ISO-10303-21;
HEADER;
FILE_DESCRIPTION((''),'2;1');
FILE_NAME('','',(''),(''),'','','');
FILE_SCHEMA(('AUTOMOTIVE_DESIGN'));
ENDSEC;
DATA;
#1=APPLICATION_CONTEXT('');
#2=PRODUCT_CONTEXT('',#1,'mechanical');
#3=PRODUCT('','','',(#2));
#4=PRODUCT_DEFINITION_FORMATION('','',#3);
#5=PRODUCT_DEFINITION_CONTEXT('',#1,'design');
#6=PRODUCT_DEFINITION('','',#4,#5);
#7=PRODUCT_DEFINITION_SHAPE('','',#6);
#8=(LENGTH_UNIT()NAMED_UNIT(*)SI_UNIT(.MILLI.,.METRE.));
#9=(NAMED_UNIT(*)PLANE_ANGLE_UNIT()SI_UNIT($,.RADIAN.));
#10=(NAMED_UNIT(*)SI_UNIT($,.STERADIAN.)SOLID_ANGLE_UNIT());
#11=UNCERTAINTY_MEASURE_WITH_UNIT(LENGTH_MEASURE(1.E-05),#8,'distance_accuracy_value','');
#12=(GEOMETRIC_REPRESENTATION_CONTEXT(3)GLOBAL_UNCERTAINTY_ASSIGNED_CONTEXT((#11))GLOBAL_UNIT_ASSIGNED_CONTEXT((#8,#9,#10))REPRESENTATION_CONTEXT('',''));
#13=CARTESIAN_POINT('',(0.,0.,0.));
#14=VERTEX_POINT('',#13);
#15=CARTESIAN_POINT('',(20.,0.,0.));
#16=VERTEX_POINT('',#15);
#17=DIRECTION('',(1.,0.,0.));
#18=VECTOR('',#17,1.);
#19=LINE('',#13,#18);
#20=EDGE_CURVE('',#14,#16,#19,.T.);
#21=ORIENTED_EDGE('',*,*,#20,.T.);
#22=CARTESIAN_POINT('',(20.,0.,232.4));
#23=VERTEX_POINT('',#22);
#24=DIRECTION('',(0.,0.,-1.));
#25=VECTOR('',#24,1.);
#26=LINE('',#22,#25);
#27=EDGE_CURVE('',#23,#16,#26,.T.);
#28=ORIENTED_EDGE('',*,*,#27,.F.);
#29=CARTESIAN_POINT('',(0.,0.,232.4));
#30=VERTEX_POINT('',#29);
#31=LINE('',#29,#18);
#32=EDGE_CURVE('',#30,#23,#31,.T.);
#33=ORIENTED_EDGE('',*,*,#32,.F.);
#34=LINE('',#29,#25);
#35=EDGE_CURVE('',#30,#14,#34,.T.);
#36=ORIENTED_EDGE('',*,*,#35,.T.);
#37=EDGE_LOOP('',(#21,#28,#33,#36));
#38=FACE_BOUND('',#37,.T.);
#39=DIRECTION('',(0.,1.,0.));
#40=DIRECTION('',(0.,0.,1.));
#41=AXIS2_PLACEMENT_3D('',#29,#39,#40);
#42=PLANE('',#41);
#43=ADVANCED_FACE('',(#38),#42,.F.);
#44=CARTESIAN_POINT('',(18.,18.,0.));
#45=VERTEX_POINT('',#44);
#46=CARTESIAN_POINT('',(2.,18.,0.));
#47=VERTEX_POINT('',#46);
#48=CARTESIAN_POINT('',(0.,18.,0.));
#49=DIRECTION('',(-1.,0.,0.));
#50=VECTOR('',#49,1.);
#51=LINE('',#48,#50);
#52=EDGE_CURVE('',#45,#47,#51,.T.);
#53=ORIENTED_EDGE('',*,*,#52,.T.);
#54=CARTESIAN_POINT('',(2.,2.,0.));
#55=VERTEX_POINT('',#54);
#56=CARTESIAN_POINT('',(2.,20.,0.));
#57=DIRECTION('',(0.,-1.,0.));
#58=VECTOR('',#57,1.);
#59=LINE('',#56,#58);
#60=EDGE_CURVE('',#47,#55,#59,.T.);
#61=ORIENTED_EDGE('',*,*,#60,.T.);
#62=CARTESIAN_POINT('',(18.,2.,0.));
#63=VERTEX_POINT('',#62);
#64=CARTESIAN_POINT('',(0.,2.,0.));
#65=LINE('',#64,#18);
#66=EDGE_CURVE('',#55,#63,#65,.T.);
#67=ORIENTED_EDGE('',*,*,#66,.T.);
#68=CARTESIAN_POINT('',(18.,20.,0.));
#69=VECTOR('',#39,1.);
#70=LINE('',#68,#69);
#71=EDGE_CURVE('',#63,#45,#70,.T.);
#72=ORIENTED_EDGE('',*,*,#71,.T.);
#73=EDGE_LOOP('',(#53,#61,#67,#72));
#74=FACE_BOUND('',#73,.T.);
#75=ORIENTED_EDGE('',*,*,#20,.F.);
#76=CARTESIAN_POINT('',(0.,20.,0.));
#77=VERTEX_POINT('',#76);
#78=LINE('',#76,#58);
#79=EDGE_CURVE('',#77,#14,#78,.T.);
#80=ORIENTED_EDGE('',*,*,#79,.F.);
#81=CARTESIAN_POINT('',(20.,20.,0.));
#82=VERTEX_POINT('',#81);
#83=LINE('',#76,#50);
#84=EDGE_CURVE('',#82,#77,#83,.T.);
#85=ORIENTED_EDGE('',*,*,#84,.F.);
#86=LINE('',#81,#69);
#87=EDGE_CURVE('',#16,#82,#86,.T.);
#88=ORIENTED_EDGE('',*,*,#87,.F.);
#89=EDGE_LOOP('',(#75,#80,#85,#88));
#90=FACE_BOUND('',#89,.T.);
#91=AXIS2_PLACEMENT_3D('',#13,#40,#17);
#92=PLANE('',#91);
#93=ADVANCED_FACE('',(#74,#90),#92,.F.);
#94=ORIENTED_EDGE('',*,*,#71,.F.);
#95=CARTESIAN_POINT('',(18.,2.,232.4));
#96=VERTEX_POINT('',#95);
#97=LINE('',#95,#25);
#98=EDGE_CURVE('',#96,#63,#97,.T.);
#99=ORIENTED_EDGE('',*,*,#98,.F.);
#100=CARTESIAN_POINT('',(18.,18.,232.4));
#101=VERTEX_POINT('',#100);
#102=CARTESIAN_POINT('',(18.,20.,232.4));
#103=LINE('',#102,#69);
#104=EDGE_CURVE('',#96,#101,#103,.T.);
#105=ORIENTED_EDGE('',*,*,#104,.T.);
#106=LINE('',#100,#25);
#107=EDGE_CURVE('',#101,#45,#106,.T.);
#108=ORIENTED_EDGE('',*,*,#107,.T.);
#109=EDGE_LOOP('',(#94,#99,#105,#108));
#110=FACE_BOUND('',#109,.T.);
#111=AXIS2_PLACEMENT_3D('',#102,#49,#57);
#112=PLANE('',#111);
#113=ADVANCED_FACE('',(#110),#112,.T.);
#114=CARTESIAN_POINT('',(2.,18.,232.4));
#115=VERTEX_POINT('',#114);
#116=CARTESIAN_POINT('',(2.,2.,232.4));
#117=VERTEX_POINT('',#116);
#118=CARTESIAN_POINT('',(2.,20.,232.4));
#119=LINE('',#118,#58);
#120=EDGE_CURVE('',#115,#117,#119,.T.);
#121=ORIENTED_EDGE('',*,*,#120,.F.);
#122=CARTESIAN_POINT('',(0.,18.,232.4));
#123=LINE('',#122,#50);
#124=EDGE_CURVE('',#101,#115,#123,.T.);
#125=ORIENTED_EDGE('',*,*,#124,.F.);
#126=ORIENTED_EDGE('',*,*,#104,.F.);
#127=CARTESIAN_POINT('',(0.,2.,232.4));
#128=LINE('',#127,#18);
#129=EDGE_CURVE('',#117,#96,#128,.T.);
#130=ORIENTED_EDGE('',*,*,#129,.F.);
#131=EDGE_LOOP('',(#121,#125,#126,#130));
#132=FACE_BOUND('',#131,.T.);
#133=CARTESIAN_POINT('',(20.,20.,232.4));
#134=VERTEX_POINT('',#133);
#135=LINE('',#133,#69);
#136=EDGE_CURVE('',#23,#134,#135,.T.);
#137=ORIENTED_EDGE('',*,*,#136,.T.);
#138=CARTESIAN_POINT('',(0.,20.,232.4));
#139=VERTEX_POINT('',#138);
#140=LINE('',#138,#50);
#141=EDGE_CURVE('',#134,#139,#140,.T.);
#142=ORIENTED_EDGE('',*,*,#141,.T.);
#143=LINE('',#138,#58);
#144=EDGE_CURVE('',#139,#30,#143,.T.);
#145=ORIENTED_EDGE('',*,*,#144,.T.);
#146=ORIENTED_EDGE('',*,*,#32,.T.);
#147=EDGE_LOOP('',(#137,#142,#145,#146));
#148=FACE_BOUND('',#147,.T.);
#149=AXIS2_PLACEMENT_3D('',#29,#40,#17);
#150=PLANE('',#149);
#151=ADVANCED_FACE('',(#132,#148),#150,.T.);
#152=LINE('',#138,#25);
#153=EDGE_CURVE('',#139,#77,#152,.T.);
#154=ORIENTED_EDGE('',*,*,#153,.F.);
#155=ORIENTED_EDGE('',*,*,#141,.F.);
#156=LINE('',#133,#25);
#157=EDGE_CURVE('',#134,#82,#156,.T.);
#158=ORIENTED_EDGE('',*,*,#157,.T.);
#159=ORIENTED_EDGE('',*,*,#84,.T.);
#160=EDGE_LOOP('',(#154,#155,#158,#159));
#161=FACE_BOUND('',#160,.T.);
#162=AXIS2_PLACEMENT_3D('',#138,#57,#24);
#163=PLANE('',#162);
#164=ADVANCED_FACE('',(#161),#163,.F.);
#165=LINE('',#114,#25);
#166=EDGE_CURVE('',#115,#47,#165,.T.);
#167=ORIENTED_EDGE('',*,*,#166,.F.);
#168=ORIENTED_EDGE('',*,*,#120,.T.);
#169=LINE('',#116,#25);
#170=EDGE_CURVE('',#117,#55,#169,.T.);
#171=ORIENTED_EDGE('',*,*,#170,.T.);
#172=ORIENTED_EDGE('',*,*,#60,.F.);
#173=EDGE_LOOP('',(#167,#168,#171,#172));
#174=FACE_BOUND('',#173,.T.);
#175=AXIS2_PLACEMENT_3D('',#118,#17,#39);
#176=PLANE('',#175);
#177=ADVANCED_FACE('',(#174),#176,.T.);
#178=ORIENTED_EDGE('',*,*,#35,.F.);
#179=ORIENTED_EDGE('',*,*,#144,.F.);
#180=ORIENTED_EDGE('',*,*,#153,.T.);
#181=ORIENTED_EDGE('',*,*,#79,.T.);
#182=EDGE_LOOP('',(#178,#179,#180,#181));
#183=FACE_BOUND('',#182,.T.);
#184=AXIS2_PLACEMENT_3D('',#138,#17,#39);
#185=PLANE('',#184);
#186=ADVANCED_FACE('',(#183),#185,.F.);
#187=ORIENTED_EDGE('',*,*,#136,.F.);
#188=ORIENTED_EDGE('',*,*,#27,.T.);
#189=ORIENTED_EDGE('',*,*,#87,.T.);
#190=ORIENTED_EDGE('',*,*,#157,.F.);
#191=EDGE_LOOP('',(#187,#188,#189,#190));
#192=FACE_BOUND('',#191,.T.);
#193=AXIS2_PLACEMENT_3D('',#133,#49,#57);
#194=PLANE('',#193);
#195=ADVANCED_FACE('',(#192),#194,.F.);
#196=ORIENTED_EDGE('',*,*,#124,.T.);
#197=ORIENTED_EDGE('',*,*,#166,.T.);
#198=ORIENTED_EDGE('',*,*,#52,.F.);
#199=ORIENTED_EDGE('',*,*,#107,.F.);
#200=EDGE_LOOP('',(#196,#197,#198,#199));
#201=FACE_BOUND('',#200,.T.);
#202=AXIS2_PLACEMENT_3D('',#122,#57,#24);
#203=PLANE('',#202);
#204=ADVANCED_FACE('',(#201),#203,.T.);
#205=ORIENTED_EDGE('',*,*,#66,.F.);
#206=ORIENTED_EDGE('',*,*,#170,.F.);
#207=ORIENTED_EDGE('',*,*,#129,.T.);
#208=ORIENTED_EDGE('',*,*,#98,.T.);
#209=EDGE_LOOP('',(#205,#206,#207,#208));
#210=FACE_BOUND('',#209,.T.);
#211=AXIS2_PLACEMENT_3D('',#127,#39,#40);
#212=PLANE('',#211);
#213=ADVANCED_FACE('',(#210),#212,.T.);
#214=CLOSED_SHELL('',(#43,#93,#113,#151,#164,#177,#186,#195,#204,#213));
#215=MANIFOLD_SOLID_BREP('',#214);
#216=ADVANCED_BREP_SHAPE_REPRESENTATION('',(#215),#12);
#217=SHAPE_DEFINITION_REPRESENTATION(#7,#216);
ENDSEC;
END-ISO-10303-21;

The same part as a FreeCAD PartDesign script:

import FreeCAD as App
import Part
import Sketcher

V = App.Vector
Q = App.Units.Quantity

doc = App.newDocument("Part")
body = doc.addObject("PartDesign::Body", "Body")

sketch1 = doc.addObject("Sketcher::SketchObject", "Sketch")
body.addObject(sketch1)
sketch1.AttachmentSupport = (doc.XY_Plane, [""])
sketch1.MapMode = "FlatFace"
sketch1.addGeometry([
    Part.LineSegment(V(0, 20, 0), V(0, 0, 0)),
    Part.LineSegment(V(0, 0, 0), V(20, 0, 0)),
    Part.LineSegment(V(20, 0, 0), V(20, 20, 0)),
    Part.LineSegment(V(20, 20, 0), V(0, 20, 0)),
    Part.LineSegment(V(18, 2, 0), V(2, 2, 0)),
    Part.LineSegment(V(2, 2, 0), V(2, 18, 0)),
    Part.LineSegment(V(2, 18, 0), V(18, 18, 0)),
    Part.LineSegment(V(18, 18, 0), V(18, 2, 0)),
], False)
sketch1.addConstraint([
    Sketcher.Constraint("Coincident", 0, 2, 1, 1),
    Sketcher.Constraint("Coincident", 1, 2, 2, 1),
    Sketcher.Constraint("Coincident", 2, 2, 3, 1),
    Sketcher.Constraint("Coincident", 3, 2, 0, 1),
    Sketcher.Constraint("Coincident", 4, 2, 5, 1),
    Sketcher.Constraint("Coincident", 5, 2, 6, 1),
    Sketcher.Constraint("Coincident", 6, 2, 7, 1),
    Sketcher.Constraint("Coincident", 7, 2, 4, 1),
    Sketcher.Constraint("Vertical", 0),
    Sketcher.Constraint("Horizontal", 1),
    Sketcher.Constraint("Vertical", 2),
    Sketcher.Constraint("Horizontal", 3),
    Sketcher.Constraint("Horizontal", 4),
    Sketcher.Constraint("Vertical", 5),
    Sketcher.Constraint("Horizontal", 6),
    Sketcher.Constraint("Vertical", 7),
    Sketcher.Constraint("Coincident", 0, 2, -1, 1),
    Sketcher.Constraint("Equal", 3, 0),
    Sketcher.Constraint("Equal", 6, 5),
    Sketcher.Constraint("DistanceX", 1, 1, 1, 2, Q("20 mm")),
    Sketcher.Constraint("DistanceX", 4, 2, 4, 1, Q("16 mm")),
    Sketcher.Constraint("DistanceX", -1, 1, 4, 2, Q("2 mm")),
    Sketcher.Constraint("DistanceY", -1, 1, 4, 2, Q("2 mm")),
])
pad1 = doc.addObject("PartDesign::Pad", "Pad")
body.addObject(pad1)
pad1.Profile = sketch1
pad1.Length = 232.4

doc.recompute()
